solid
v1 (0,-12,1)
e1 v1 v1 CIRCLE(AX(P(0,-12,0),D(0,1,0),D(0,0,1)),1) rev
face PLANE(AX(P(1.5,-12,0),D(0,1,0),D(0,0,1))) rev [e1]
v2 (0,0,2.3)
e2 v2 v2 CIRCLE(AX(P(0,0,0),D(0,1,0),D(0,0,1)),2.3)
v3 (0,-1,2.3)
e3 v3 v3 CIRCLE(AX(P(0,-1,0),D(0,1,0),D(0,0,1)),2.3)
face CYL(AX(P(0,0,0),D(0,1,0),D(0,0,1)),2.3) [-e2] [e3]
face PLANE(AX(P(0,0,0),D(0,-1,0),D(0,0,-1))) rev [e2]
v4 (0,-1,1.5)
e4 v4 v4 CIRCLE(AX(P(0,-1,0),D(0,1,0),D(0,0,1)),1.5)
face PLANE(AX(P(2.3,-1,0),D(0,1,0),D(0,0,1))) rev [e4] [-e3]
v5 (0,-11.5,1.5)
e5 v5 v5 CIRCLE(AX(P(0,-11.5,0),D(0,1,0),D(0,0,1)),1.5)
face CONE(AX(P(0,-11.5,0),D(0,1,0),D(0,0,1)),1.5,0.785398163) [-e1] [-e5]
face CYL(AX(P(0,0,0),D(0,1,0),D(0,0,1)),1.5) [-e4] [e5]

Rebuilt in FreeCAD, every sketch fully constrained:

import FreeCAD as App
import Part
import Sketcher


def edges_at(feature, points):
    """Names of the edges that pass closest to the given points."""
    edges = feature.Shape.Edges
    near = lambda p: min(range(len(edges)), key=lambda i: edges[i].distToShape(Part.Vertex(*p))[0])
    return sorted({f"Edge{near(p) + 1}" for p in points})

doc = App.newDocument("Part")
body = doc.addObject("PartDesign::Body", "Body")

# Sketch on XY plane
sketch1 = doc.addObject("Sketcher::SketchObject", "Sketch")
body.addObject(sketch1)
sketch1.AttachmentSupport = (doc.XY_Plane, [""])
sketch1.MapMode = "FlatFace"
sketch1.addGeometry(Part.LineSegment(App.Vector(2.3, 0, 0), App.Vector(0, 0, 0)), False)
sketch1.addGeometry(Part.LineSegment(App.Vector(0, 0, 0), App.Vector(0, -12, 0)), False)
sketch1.addGeometry(Part.LineSegment(App.Vector(0, -12, 0), App.Vector(1.5, -12, 0)), False)
sketch1.addGeometry(Part.LineSegment(App.Vector(1.5, -12, 0), App.Vector(1.5, -1, 0)), False)
sketch1.addGeometry(Part.LineSegment(App.Vector(1.5, -1, 0), App.Vector(2.3, -1, 0)), False)
sketch1.addGeometry(Part.LineSegment(App.Vector(2.3, -1, 0), App.Vector(2.3, 0, 0)), False)
sketch1.addConstraint(Sketcher.Constraint("Coincident", 0, 2, 1, 1))
sketch1.addConstraint(Sketcher.Constraint("Coincident", 1, 2, 2, 1))
sketch1.addConstraint(Sketcher.Constraint("Coincident", 2, 2, 3, 1))
sketch1.addConstraint(Sketcher.Constraint("Coincident", 3, 2, 4, 1))
sketch1.addConstraint(Sketcher.Constraint("Coincident", 4, 2, 5, 1))
sketch1.addConstraint(Sketcher.Constraint("Coincident", 5, 2, 0, 1))
sketch1.addConstraint(Sketcher.Constraint("Horizontal", 0))
sketch1.addConstraint(Sketcher.Constraint("Vertical", 1))
sketch1.addConstraint(Sketcher.Constraint("Horizontal", 2))
sketch1.addConstraint(Sketcher.Constraint("Vertical", 3))
sketch1.addConstraint(Sketcher.Constraint("Horizontal", 4))
sketch1.addConstraint(Sketcher.Constraint("Vertical", 5))
sketch1.addConstraint(Sketcher.Constraint("Coincident", 0, 2, -1, 1))
sketch1.addConstraint(Sketcher.Constraint("DistanceY", 1, 2, 1, 1, 12.0))
sketch1.addConstraint(Sketcher.Constraint("DistanceY", 3, 1, 3, 2, 11.0))
sketch1.addConstraint(Sketcher.Constraint("DistanceX", 0, 2, 0, 1, 2.3))
sketch1.addConstraint(Sketcher.Constraint("DistanceX", 2, 1, 2, 2, 1.5))
revolution = doc.addObject("PartDesign::Revolution", "Revolution")
body.addObject(revolution)
revolution.Profile = sketch1
revolution.ReferenceAxis = (sketch1, ["V_Axis"])
revolution.Angle = 360
doc.recompute()

chamfer = doc.addObject("PartDesign::Chamfer", "Chamfer")
body.addObject(chamfer)
chamfer.Base = (revolution, edges_at(revolution, [(-1.5, -12, 0)]))
chamfer.Size = 0.5

doc.recompute()
